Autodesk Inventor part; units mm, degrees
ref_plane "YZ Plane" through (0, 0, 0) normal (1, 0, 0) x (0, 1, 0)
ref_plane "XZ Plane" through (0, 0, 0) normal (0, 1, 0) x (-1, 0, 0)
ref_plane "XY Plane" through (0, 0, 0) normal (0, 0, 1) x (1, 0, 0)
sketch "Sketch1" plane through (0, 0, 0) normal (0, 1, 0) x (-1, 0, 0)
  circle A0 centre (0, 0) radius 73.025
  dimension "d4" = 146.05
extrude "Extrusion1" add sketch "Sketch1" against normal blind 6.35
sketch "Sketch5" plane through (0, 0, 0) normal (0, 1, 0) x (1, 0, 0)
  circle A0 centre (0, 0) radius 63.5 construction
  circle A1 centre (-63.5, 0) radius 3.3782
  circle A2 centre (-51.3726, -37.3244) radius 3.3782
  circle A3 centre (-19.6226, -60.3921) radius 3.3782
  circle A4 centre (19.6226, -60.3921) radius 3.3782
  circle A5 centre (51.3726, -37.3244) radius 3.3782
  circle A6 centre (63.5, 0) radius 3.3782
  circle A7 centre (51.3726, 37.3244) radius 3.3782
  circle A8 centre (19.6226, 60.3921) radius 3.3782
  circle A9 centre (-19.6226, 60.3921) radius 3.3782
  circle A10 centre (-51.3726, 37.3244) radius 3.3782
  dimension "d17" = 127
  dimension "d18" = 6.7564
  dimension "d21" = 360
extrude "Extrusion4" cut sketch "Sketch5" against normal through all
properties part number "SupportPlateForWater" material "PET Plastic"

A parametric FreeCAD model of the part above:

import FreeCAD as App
import Part
import Sketcher
Q = App.Units.Quantity

doc = App.newDocument("Part")
params = doc.addObject("Spreadsheet::Sheet", "Params")
for row, (alias, value) in enumerate([
    ("sketch1_diameter", "5.75 in"),
    ("pad1_length", "0.25 in"),
    ("sketch2_diameter", "0.266 in"),
], start=1):
    params.set(f"A{row}", alias)
    params.set(f"B{row}", "=" + value)
    params.setAlias(f"B{row}", alias)

body = doc.addObject("PartDesign::Body", "Body")

sketch1 = body.newObject("Sketcher::SketchObject", "Sketch")
sketch1.AttachmentSupport = (doc.getObject("XZ_Plane"), [""])
sketch1.MapMode = "FlatFace"
sketch1.addGeometry(Part.Circle(App.Vector(0, 0, 0), App.Vector(0, 0, 1), 73), False)
sketch1.addConstraint([
    Sketcher.Constraint("Coincident", 0, 3, -1, 1),
    Sketcher.Constraint("Diameter", 0, Q("5.75 in")),
])
sketch1.setExpression("Constraints[1]", "Params.sketch1_diameter")
pad1 = body.newObject("PartDesign::Pad", "Pad")
pad1.Profile = sketch1
pad1.setExpression("Length", "Params.pad1_length")

sketch2 = body.newObject("Sketcher::SketchObject", "Sketch001")
sketch2.AttachmentSupport = (doc.getObject("XZ_Plane"), [""])
sketch2.MapMode = "FlatFace"
sketch2.addGeometry([
    Part.Circle(App.Vector(-63.5, 0, 0), App.Vector(0, 0, 1), 3.4),
    Part.Circle(App.Vector(-51.4, 37.3, 0), App.Vector(0, 0, 1), 3.4),
    Part.Circle(App.Vector(-19.6, 60.4, 0), App.Vector(0, 0, 1), 3.4),
    Part.Circle(App.Vector(19.6, 60.4, 0), App.Vector(0, 0, 1), 3.4),
    Part.Circle(App.Vector(51.4, 37.3, 0), App.Vector(0, 0, 1), 3.4),
    Part.Circle(App.Vector(63.5, 0, 0), App.Vector(0, 0, 1), 3.4),
    Part.Circle(App.Vector(51.4, -37.3, 0), App.Vector(0, 0, 1), 3.4),
    Part.Circle(App.Vector(19.6, -60.4, 0), App.Vector(0, 0, 1), 3.4),
    Part.Circle(App.Vector(-19.6, -60.4, 0), App.Vector(0, 0, 1), 3.4),
    Part.Circle(App.Vector(-51.4, -37.3, 0), App.Vector(0, 0, 1), 3.4),
], False)
sketch2.addConstraint([
    Sketcher.Constraint("Equal", 0, 1),
    Sketcher.Constraint("Equal", 1, 2),
    Sketcher.Constraint("Equal", 2, 3),
    Sketcher.Constraint("Equal", 3, 4),
    Sketcher.Constraint("Equal", 4, 5),
    Sketcher.Constraint("Equal", 5, 6),
    Sketcher.Constraint("Equal", 6, 7),
    Sketcher.Constraint("Equal", 7, 8),
    Sketcher.Constraint("Equal", 8, 9),
    Sketcher.Constraint("Symmetric", 0, 3, 5, 3, -1, 1),
    Sketcher.Constraint("Symmetric", 1, 3, 6, 3, -1, 1),
    Sketcher.Constraint("Symmetric", 2, 3, 7, 3, -1, 1),
    Sketcher.Constraint("Symmetric", 3, 3, 8, 3, -1, 1),
    Sketcher.Constraint("Symmetric", 4, 3, 9, 3, -1, 1),
    Sketcher.Constraint("Symmetric", 2, 3, 3, 3, -2),
    Sketcher.Constraint("Symmetric", 1, 3, 4, 3, -2),
    Sketcher.Constraint("PointOnObject", 0, 3, -1),
    Sketcher.Constraint("Diameter", 0, Q("0.266 in")),
    Sketcher.Constraint("DistanceX", 0, 3, 5, 3, Q("5 in")),
    Sketcher.Constraint("DistanceX", 1, 3, 2, 3, Q("1.25 in")),
    Sketcher.Constraint("DistanceY", 6, 3, 3, 3, Q("3.8471 in")),
    Sketcher.Constraint("DistanceX", 1, 3, -1, 1, 51.3726),
    Sketcher.Constraint("DistanceY", -1, 1, 1, 3, 37.3244),
])
sketch2.setExpression("Constraints[17]", "Params.sketch2_diameter")
pocket1 = body.newObject("PartDesign::Pocket", "Pocket")
pocket1.Profile = sketch2
pocket1.Type = "ThroughAll"
pocket1.Reversed = True

doc.recompute()
